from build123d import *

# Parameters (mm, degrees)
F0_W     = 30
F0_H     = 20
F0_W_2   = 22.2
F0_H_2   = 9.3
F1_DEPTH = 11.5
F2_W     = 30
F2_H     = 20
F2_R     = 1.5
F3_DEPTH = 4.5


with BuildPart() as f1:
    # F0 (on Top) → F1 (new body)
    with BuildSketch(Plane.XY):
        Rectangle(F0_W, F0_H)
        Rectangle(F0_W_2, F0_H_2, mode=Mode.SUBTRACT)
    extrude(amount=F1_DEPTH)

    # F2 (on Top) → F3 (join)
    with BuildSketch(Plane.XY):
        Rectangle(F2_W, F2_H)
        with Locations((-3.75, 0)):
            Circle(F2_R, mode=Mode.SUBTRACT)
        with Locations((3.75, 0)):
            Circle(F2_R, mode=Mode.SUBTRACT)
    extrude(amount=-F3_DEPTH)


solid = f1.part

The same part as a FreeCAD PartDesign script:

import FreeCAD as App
import Part
import Sketcher
Q = App.Units.Quantity

doc = App.newDocument("Part")
body = doc.addObject("PartDesign::Body", "Body")

# Sketch on XY plane
sketch1 = body.newObject("Sketcher::SketchObject", "Sketch")
sketch1.AttachmentSupport = (doc.getObject("XY_Plane"), [""])
sketch1.MapMode = "FlatFace"
sketch1.addGeometry(Part.LineSegment(App.Vector(-15, 10, 0), App.Vector(-15, -10, 0)), False)
sketch1.addGeometry(Part.LineSegment(App.Vector(-15, -10, 0), App.Vector(15, -10, 0)), False)
sketch1.addGeometry(Part.LineSegment(App.Vector(15, -10, 0), App.Vector(15, 10, 0)), False)
sketch1.addGeometry(Part.LineSegment(App.Vector(15, 10, 0), App.Vector(-15, 10, 0)), False)
sketch1.addGeometry(Part.LineSegment(App.Vector(11.1, -4.65, 0), App.Vector(-11.1, -4.65, 0)), False)
sketch1.addGeometry(Part.LineSegment(App.Vector(-11.1, -4.65, 0), App.Vector(-11.1, 4.65, 0)), False)
sketch1.addGeometry(Part.LineSegment(App.Vector(-11.1, 4.65, 0), App.Vector(11.1, 4.65, 0)), False)
sketch1.addGeometry(Part.LineSegment(App.Vector(11.1, 4.65, 0), App.Vector(11.1, -4.65, 0)), False)
sketch1.addConstraint(Sketcher.Constraint("Coincident", 0, 2, 1, 1))
sketch1.addConstraint(Sketcher.Constraint("Coincident", 1, 2, 2, 1))
sketch1.addConstraint(Sketcher.Constraint("Coincident", 2, 2, 3, 1))
sketch1.addConstraint(Sketcher.Constraint("Coincident", 3, 2, 0, 1))
sketch1.addConstraint(Sketcher.Constraint("Coincident", 4, 2, 5, 1))
sketch1.addConstraint(Sketcher.Constraint("Coincident", 5, 2, 6, 1))
sketch1.addConstraint(Sketcher.Constraint("Coincident", 6, 2, 7, 1))
sketch1.addConstraint(Sketcher.Constraint("Coincident", 7, 2, 4, 1))
sketch1.addConstraint(Sketcher.Constraint("Vertical", 0))
sketch1.addConstraint(Sketcher.Constraint("Horizontal", 1))
sketch1.addConstraint(Sketcher.Constraint("Vertical", 2))
sketch1.addConstraint(Sketcher.Constraint("Horizontal", 3))
sketch1.addConstraint(Sketcher.Constraint("Horizontal", 4))
sketch1.addConstraint(Sketcher.Constraint("Vertical", 5))
sketch1.addConstraint(Sketcher.Constraint("Horizontal", 6))
sketch1.addConstraint(Sketcher.Constraint("Vertical", 7))
sketch1.addConstraint(Sketcher.Constraint("Symmetric", 0, 2, 2, 2, -1, 1))
sketch1.addConstraint(Sketcher.Constraint("Symmetric", 4, 2, 6, 2, -1, 1))
sketch1.addConstraint(Sketcher.Constraint("DistanceX", 1, 1, 1, 2, Q("30 mm")))
sketch1.addConstraint(Sketcher.Constraint("DistanceY", 0, 2, 0, 1, Q("20 mm")))
sketch1.addConstraint(Sketcher.Constraint("DistanceX", 4, 2, 4, 1, Q("22.2 mm")))
sketch1.addConstraint(Sketcher.Constraint("DistanceY", 5, 1, 5, 2, Q("9.3 mm")))
pad1 = body.newObject("PartDesign::Pad", "Pad")
pad1.Profile = sketch1
pad1.Length = 11.5

# Sketch on XY plane
sketch2 = body.newObject("Sketcher::SketchObject", "Sketch001")
sketch2.AttachmentSupport = (doc.getObject("XY_Plane"), [""])
sketch2.MapMode = "FlatFace"
sketch2.addGeometry(Part.LineSegment(App.Vector(-15, 10, 0), App.Vector(-15, -10, 0)), False)
sketch2.addGeometry(Part.LineSegment(App.Vector(-15, -10, 0), App.Vector(15, -10, 0)), False)
sketch2.addGeometry(Part.LineSegment(App.Vector(15, -10, 0), App.Vector(15, 10, 0)), False)
sketch2.addGeometry(Part.LineSegment(App.Vector(15, 10, 0), App.Vector(-15, 10, 0)), False)
sketch2.addGeometry(Part.Circle(App.Vector(-3.75, 0, 0), App.Vector(0, 0, 1), 1.5), False)
sketch2.addGeometry(Part.Circle(App.Vector(3.75, 0, 0), App.Vector(0, 0, 1), 1.5), False)
sketch2.addConstraint(Sketcher.Constraint("Coincident", 0, 2, 1, 1))
sketch2.addConstraint(Sketcher.Constraint("Coincident", 1, 2, 2, 1))
sketch2.addConstraint(Sketcher.Constraint("Coincident", 2, 2, 3, 1))
sketch2.addConstraint(Sketcher.Constraint("Coincident", 3, 2, 0, 1))
sketch2.addConstraint(Sketcher.Constraint("Vertical", 0))
sketch2.addConstraint(Sketcher.Constraint("Horizontal", 1))
sketch2.addConstraint(Sketcher.Constraint("Vertical", 2))
sketch2.addConstraint(Sketcher.Constraint("Horizontal", 3))
sketch2.addConstraint(Sketcher.Constraint("Equal", 4, 5))
sketch2.addConstraint(Sketcher.Constraint("Symmetric", 4, 3, 5, 3, -1, 1))
sketch2.addConstraint(Sketcher.Constraint("Symmetric", 0, 2, 2, 2, -1, 1))
sketch2.addConstraint(Sketcher.Constraint("PointOnObject", 4, 3, -1))
sketch2.addConstraint(Sketcher.Constraint("Diameter", 4, Q("3 mm")))
sketch2.addConstraint(Sketcher.Constraint("DistanceX", 1, 1, 1, 2, Q("30 mm")))
sketch2.addConstraint(Sketcher.Constraint("DistanceY", 0, 2, 0, 1, Q("20 mm")))
sketch2.addConstraint(Sketcher.Constraint("DistanceX", 4, 3, 5, 3, Q("7.5 mm")))
pad2 = body.newObject("PartDesign::Pad", "Pad001")
pad2.Profile = sketch2
pad2.Length = 4.5
pad2.Reversed = True

doc.recompute()
